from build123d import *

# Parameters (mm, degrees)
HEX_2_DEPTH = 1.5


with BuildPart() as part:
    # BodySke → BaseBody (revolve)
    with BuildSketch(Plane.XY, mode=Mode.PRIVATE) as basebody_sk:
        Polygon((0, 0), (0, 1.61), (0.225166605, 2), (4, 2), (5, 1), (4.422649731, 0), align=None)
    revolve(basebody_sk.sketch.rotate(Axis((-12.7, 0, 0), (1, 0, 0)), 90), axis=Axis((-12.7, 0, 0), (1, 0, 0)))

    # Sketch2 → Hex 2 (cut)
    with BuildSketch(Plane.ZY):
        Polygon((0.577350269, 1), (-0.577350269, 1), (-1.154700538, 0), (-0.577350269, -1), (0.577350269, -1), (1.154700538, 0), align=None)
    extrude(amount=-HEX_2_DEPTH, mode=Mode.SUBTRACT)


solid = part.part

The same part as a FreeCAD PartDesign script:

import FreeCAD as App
import Part
import Sketcher

V = App.Vector
Q = App.Units.Quantity


def add_polygon(sketch, points):
    """Adds a closed chain of lines whose ends are joined by coincident constraints."""
    first, n = sketch.GeometryCount, len(points)
    for a, b in zip(points, points[1:] + points[:1]):
        sketch.addGeometry(Part.LineSegment(App.Vector(*a, 0), App.Vector(*b, 0)), False)
    for i in range(n):
        sketch.addConstraint(Sketcher.Constraint("Coincident", first + i, 2, first + (i + 1) % n, 1))

doc = App.newDocument("Part")
body = doc.addObject("PartDesign::Body", "Body")

# Sketch on XY plane
sketch1 = body.newObject("Sketcher::SketchObject", "Sketch")
sketch1.AttachmentSupport = (doc.getObject("XY_Plane"), [""])
sketch1.MapMode = "FlatFace"
add_polygon(sketch1, [(0, 1.61), (0, 0), (4.42265, 0), (5, 1), (4, 2), (0.225167, 2)])  # lines 0-5
sketch1.addConstraint(Sketcher.Constraint("Vertical", 0))
sketch1.addConstraint(Sketcher.Constraint("Horizontal", 1))
sketch1.addConstraint(Sketcher.Constraint("Horizontal", 4))
sketch1.addConstraint(Sketcher.Constraint("Coincident", 0, 2, -1, 1))
sketch1.addConstraint(Sketcher.Constraint("Parallel", 2, 5))
sketch1.addConstraint(Sketcher.Constraint("Angle", 2, Q("60 deg")))
sketch1.addConstraint(Sketcher.Constraint("Angle", 3, Q("135 deg")))
sketch1.addConstraint(Sketcher.Constraint("DistanceX", -1, 1, 2, 2, 5.0))
sketch1.addConstraint(Sketcher.Constraint("DistanceY", -1, 1, 2, 2, 1.0))
sketch1.addConstraint(Sketcher.Constraint("DistanceX", -1, 1, 3, 2, 4.0))
sketch1.addConstraint(Sketcher.Constraint("DistanceY", 0, 2, 0, 1, 1.61))
revolution = body.newObject("PartDesign::Revolution", "Revolution")
revolution.Profile = sketch1
revolution.ReferenceAxis = (sketch1, ["H_Axis"])
revolution.Angle = 360

# Sketch on YZ plane
sketch2 = body.newObject("Sketcher::SketchObject", "Sketch001")
sketch2.AttachmentSupport = (doc.getObject("YZ_Plane"), [""])
sketch2.MapMode = "FlatFace"
add_polygon(sketch2, [(1, 0.57735), (1, -0.57735), (0, -1.154701), (-1, -0.57735), (-1, 0.57735), (0, 1.154701)])  # lines 0-5
sketch2.addConstraint(Sketcher.Constraint("Vertical", 0))
sketch2.addConstraint(Sketcher.Constraint("Vertical", 3))
sketch2.addConstraint(Sketcher.Constraint("Symmetric", 0, 2, 3, 2, -1, 1))
sketch2.addConstraint(Sketcher.Constraint("Symmetric", 1, 2, 4, 2, -1, 1))
sketch2.addConstraint(Sketcher.Constraint("PointOnObject", 1, 2, -2))
sketch2.addConstraint(Sketcher.Constraint("Parallel", 2, 5))
sketch2.addConstraint(Sketcher.Constraint("Horizontal", 0, 2, 2, 2))
sketch2.addConstraint(Sketcher.Constraint("Angle", 1, Q("-150 deg")))
sketch2.addConstraint(Sketcher.Constraint("DistanceX", -1, 1, 0, 2, 1.0))
sketch2.addConstraint(Sketcher.Constraint("DistanceY", 0, 2, 0, 1, 1.154701))
pocket1 = body.newObject("PartDesign::Pocket", "Pocket")
pocket1.Profile = sketch2
pocket1.Length = 1.5
pocket1.Reversed = True

doc.recompute()
